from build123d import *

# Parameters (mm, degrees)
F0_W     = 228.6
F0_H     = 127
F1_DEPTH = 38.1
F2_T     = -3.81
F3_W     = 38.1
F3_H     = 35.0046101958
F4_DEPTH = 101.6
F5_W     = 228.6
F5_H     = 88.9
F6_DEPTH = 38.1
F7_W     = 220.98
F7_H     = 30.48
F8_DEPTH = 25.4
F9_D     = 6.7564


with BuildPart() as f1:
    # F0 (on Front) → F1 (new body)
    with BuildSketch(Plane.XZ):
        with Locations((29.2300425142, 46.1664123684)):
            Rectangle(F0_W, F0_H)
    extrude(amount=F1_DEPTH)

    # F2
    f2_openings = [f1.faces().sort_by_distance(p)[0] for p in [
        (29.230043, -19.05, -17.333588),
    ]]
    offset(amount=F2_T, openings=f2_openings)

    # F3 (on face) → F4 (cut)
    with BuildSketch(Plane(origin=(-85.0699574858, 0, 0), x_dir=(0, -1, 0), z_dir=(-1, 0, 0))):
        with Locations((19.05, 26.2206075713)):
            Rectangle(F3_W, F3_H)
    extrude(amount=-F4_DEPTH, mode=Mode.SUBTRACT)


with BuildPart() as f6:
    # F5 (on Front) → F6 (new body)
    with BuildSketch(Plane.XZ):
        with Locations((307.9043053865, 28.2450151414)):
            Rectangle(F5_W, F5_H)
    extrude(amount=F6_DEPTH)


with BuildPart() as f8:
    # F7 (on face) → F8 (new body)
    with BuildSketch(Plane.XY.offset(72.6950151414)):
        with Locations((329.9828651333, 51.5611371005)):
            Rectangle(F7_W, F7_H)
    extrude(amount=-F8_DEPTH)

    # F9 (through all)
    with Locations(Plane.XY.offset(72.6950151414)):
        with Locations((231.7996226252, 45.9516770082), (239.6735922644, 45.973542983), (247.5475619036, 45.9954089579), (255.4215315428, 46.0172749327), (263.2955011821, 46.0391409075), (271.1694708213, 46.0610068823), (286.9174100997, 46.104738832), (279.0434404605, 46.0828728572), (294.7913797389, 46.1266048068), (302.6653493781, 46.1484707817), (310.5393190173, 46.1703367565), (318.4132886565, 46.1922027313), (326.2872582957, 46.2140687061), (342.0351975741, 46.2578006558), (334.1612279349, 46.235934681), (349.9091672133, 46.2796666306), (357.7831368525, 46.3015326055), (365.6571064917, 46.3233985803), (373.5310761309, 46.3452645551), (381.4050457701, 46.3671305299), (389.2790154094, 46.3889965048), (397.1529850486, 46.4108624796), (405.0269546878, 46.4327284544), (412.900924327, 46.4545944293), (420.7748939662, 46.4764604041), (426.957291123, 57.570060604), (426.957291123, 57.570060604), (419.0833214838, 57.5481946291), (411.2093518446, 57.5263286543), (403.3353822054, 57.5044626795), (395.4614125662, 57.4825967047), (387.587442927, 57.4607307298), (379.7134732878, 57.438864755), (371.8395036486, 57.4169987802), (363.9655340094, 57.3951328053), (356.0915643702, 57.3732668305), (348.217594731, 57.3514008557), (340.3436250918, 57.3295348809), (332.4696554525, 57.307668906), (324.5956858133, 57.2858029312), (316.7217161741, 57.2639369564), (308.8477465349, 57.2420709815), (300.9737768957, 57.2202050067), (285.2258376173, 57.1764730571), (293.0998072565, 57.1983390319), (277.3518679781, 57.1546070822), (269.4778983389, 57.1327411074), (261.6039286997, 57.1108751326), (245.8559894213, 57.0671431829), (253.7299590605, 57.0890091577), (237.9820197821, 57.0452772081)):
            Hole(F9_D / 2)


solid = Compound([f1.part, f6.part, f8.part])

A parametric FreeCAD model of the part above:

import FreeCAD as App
import Part
import Sketcher

V = App.Vector
Q = App.Units.Quantity


def faces_at(feature, points):
    """Names of the faces that lie closest to the given points."""
    faces = feature.Shape.Faces
    near = lambda p: min(range(len(faces)), key=lambda i: faces[i].distToShape(Part.Vertex(*p))[0])
    return sorted({f"Face{near(p) + 1}" for p in points})


def add_polygon(sketch, points):
    """Adds a closed chain of lines whose ends are joined by coincident constraints."""
    first, n = sketch.GeometryCount, len(points)
    for a, b in zip(points, points[1:] + points[:1]):
        sketch.addGeometry(Part.LineSegment(App.Vector(*a, 0), App.Vector(*b, 0)), False)
    for i in range(n):
        sketch.addConstraint(Sketcher.Constraint("Coincident", first + i, 2, first + (i + 1) % n, 1))

doc = App.newDocument("Part")
body = doc.addObject("PartDesign::Body", "Body")

sketch1 = doc.addObject("Sketcher::SketchObject", "Sketch")
body.addObject(sketch1)
sketch1.AttachmentSupport = (doc.XZ_Plane, [""])
sketch1.MapMode = "FlatFace"
add_polygon(sketch1, [(-85, 110), (-85, -17), (144, -17), (144, 110)])
sketch1.addConstraint(Sketcher.Constraint("Vertical", 0))
sketch1.addConstraint(Sketcher.Constraint("Horizontal", 1))
sketch1.addConstraint(Sketcher.Constraint("Vertical", 2))
sketch1.addConstraint(Sketcher.Constraint("Horizontal", 3))
sketch1.addConstraint(Sketcher.Constraint("DistanceX", 1, 1, 1, 2, Q("9 in")))
sketch1.addConstraint(Sketcher.Constraint("DistanceY", 0, 2, 0, 1, Q("5 in")))
sketch1.addConstraint(Sketcher.Constraint("DistanceX", 0, 2, -1, 1, Q("85.069957 mm")))
sketch1.addConstraint(Sketcher.Constraint("DistanceY", 0, 2, -1, 1, Q("17.333588 mm")))
pad1 = doc.addObject("PartDesign::Pad", "Pad")
body.addObject(pad1)
pad1.Profile = sketch1
pad1.Length = Q("1.5 in")
doc.recompute()

thickness = doc.addObject("PartDesign::Thickness", "Thickness")
body.addObject(thickness)
thickness.Base = (pad1, faces_at(pad1, [(29.23, -19.05, -17.334)]))
thickness.Value = Q("0.15 in")
thickness.Reversed = True
thickness.Join = "Arc"

sketch2 = doc.addObject("Sketcher::SketchObject", "Sketch001")
body.addObject(sketch2)
sketch2.AttachmentSupport = (doc.YZ_Plane, [""])
sketch2.MapMode = "FlatFace"
sketch2.AttachmentOffset = App.Placement(V(0, 0, -85.069957), App.Rotation())
add_polygon(sketch2, [(0, 44), (0, 9), (-38, 9), (-38, 44)])
sketch2.addConstraint(Sketcher.Constraint("Vertical", 0))
sketch2.addConstraint(Sketcher.Constraint("Horizontal", 1))
sketch2.addConstraint(Sketcher.Constraint("Vertical", 2))
sketch2.addConstraint(Sketcher.Constraint("Horizontal", 3))
sketch2.addConstraint(Sketcher.Constraint("PointOnObject", 0, 2, -2))
sketch2.addConstraint(Sketcher.Constraint("DistanceX", 1, 2, 1, 1, Q("1.5 in")))
sketch2.addConstraint(Sketcher.Constraint("DistanceY", 0, 2, 0, 1, Q("35.00461 mm")))
sketch2.addConstraint(Sketcher.Constraint("DistanceY", -1, 1, 0, 2, Q("8.718302 mm")))
pocket1 = doc.addObject("PartDesign::Pocket", "Pocket")
body.addObject(pocket1)
pocket1.Profile = sketch2
pocket1.Length = Q("4 in")
pocket1.Reversed = True
body2 = doc.addObject("PartDesign::Body", "Body001")

sketch3 = doc.addObject("Sketcher::SketchObject", "Sketch002")
body2.addObject(sketch3)
sketch3.AttachmentSupport = (doc.getObject("XZ_Plane001"), [""])
sketch3.MapMode = "FlatFace"
add_polygon(sketch3, [(194, 73), (194, -16), (422, -16), (422, 73)])
sketch3.addConstraint(Sketcher.Constraint("Vertical", 0))
sketch3.addConstraint(Sketcher.Constraint("Horizontal", 1))
sketch3.addConstraint(Sketcher.Constraint("Vertical", 2))
sketch3.addConstraint(Sketcher.Constraint("Horizontal", 3))
sketch3.addConstraint(Sketcher.Constraint("DistanceX", 1, 1, 1, 2, Q("9 in")))
sketch3.addConstraint(Sketcher.Constraint("DistanceY", 0, 2, 0, 1, Q("3.5 in")))
sketch3.addConstraint(Sketcher.Constraint("DistanceX", -1, 1, 0, 2, Q("193.604305 mm")))
sketch3.addConstraint(Sketcher.Constraint("DistanceY", 0, 2, -1, 1, Q("16.204985 mm")))
pad2 = doc.addObject("PartDesign::Pad", "Pad001")
body2.addObject(pad2)
pad2.Profile = sketch3
pad2.Length = Q("1.5 in")
body3 = doc.addObject("PartDesign::Body", "Body002")

sketch4 = doc.addObject("Sketcher::SketchObject", "Sketch003")
body3.addObject(sketch4)
sketch4.AttachmentSupport = (doc.getObject("XY_Plane002"), [""])
sketch4.MapMode = "FlatFace"
sketch4.AttachmentOffset = App.Placement(V(0, 0, 72.695015), App.Rotation())
add_polygon(sketch4, [(219, 67), (219, 36), (440, 36), (440, 67)])
sketch4.addConstraint(Sketcher.Constraint("Vertical", 0))
sketch4.addConstraint(Sketcher.Constraint("Horizontal", 1))
sketch4.addConstraint(Sketcher.Constraint("Vertical", 2))
sketch4.addConstraint(Sketcher.Constraint("Horizontal", 3))
sketch4.addConstraint(Sketcher.Constraint("DistanceX", 1, 1, 1, 2, Q("8.7 in")))
sketch4.addConstraint(Sketcher.Constraint("DistanceY", 0, 2, 0, 1, Q("1.2 in")))
sketch4.addConstraint(Sketcher.Constraint("DistanceX", -1, 1, 0, 2, Q("219.492865 mm")))
sketch4.addConstraint(Sketcher.Constraint("DistanceY", -1, 1, 0, 2, Q("36.321137 mm")))
pad3 = doc.addObject("PartDesign::Pad", "Pad002")
body3.addObject(pad3)
pad3.Profile = sketch4
pad3.Length = Q("1 in")
pad3.Reversed = True

sketch5 = doc.addObject("Sketcher::SketchObject", "Sketch004")
body3.addObject(sketch5)
sketch5.AttachmentSupport = (doc.getObject("XY_Plane002"), [""])
sketch5.MapMode = "FlatFace"
sketch5.AttachmentOffset = App.Placement(V(0, 0, 72.695015), App.Rotation())
sketch5.addGeometry(Part.Circle(V(231.8, 46, 0), V(0, 0, 1), 3.4), False)
sketch5.addGeometry(Part.Circle(V(239.7, 46, 0), V(0, 0, 1), 3.4), False)
sketch5.addGeometry(Part.Circle(V(247.5, 46, 0), V(0, 0, 1), 3.4), False)
sketch5.addGeometry(Part.Circle(V(255.4, 46, 0), V(0, 0, 1), 3.4), False)
sketch5.addGeometry(Part.Circle(V(263.3, 46, 0), V(0, 0, 1), 3.4), False)
sketch5.addGeometry(Part.Circle(V(271.2, 46.1, 0), V(0, 0, 1), 3.4), False)
sketch5.addGeometry(Part.Circle(V(286.9, 46.1, 0), V(0, 0, 1), 3.4), False)
sketch5.addGeometry(Part.Circle(V(279, 46.1, 0), V(0, 0, 1), 3.4), False)
sketch5.addGeometry(Part.Circle(V(294.8, 46.1, 0), V(0, 0, 1), 3.4), False)
sketch5.addGeometry(Part.Circle(V(302.7, 46.1, 0), V(0, 0, 1), 3.4), False)
sketch5.addGeometry(Part.Circle(V(310.5, 46.2, 0), V(0, 0, 1), 3.4), False)
sketch5.addGeometry(Part.Circle(V(318.4, 46.2, 0), V(0, 0, 1), 3.4), False)
sketch5.addGeometry(Part.Circle(V(326.3, 46.2, 0), V(0, 0, 1), 3.4), False)
sketch5.addGeometry(Part.Circle(V(342, 46.3, 0), V(0, 0, 1), 3.4), False)
sketch5.addGeometry(Part.Circle(V(334.2, 46.2, 0), V(0, 0, 1), 3.4), False)
sketch5.addGeometry(Part.Circle(V(349.9, 46.3, 0), V(0, 0, 1), 3.4), False)
sketch5.addGeometry(Part.Circle(V(357.8, 46.3, 0), V(0, 0, 1), 3.4), False)
sketch5.addGeometry(Part.Circle(V(365.7, 46.3, 0), V(0, 0, 1), 3.4), False)
sketch5.addGeometry(Part.Circle(V(373.5, 46.3, 0), V(0, 0, 1), 3.4), False)
sketch5.addGeometry(Part.Circle(V(381.4, 46.4, 0), V(0, 0, 1), 3.4), False)
sketch5.addGeometry(Part.Circle(V(389.3, 46.4, 0), V(0, 0, 1), 3.4), False)
sketch5.addGeometry(Part.Circle(V(397.2, 46.4, 0), V(0, 0, 1), 3.4), False)
sketch5.addGeometry(Part.Circle(V(405, 46.4, 0), V(0, 0, 1), 3.4), False)
sketch5.addGeometry(Part.Circle(V(412.9, 46.5, 0), V(0, 0, 1), 3.4), False)
sketch5.addGeometry(Part.Circle(V(420.8, 46.5, 0), V(0, 0, 1), 3.4), False)
sketch5.addGeometry(Part.Circle(V(427, 57.6, 0), V(0, 0, 1), 3.4), False)
sketch5.addGeometry(Part.Circle(V(427, 57.6, 0), V(0, 0, 1), 3.4), False)
sketch5.addGeometry(Part.Circle(V(419.1, 57.5, 0), V(0, 0, 1), 3.4), False)
sketch5.addGeometry(Part.Circle(V(411.2, 57.5, 0), V(0, 0, 1), 3.4), False)
sketch5.addGeometry(Part.Circle(V(403.3, 57.5, 0), V(0, 0, 1), 3.4), False)
sketch5.addGeometry(Part.Circle(V(395.5, 57.5, 0), V(0, 0, 1), 3.4), False)
sketch5.addGeometry(Part.Circle(V(387.6, 57.5, 0), V(0, 0, 1), 3.4), False)
sketch5.addGeometry(Part.Circle(V(379.7, 57.4, 0), V(0, 0, 1), 3.4), False)
sketch5.addGeometry(Part.Circle(V(371.8, 57.4, 0), V(0, 0, 1), 3.4), False)
sketch5.addGeometry(Part.Circle(V(364, 57.4, 0), V(0, 0, 1), 3.4), False)
sketch5.addGeometry(Part.Circle(V(356.1, 57.4, 0), V(0, 0, 1), 3.4), False)
sketch5.addGeometry(Part.Circle(V(348.2, 57.4, 0), V(0, 0, 1), 3.4), False)
sketch5.addGeometry(Part.Circle(V(340.3, 57.3, 0), V(0, 0, 1), 3.4), False)
sketch5.addGeometry(Part.Circle(V(332.5, 57.3, 0), V(0, 0, 1), 3.4), False)
sketch5.addGeometry(Part.Circle(V(324.6, 57.3, 0), V(0, 0, 1), 3.4), False)
sketch5.addGeometry(Part.Circle(V(316.7, 57.3, 0), V(0, 0, 1), 3.4), False)
sketch5.addGeometry(Part.Circle(V(308.8, 57.2, 0), V(0, 0, 1), 3.4), False)
sketch5.addGeometry(Part.Circle(V(301, 57.2, 0), V(0, 0, 1), 3.4), False)
sketch5.addGeometry(Part.Circle(V(285.2, 57.2, 0), V(0, 0, 1), 3.4), False)
sketch5.addGeometry(Part.Circle(V(293.1, 57.2, 0), V(0, 0, 1), 3.4), False)
sketch5.addGeometry(Part.Circle(V(277.4, 57.2, 0), V(0, 0, 1), 3.4), False)
sketch5.addGeometry(Part.Circle(V(269.5, 57.1, 0), V(0, 0, 1), 3.4), False)
sketch5.addGeometry(Part.Circle(V(261.6, 57.1, 0), V(0, 0, 1), 3.4), False)
sketch5.addGeometry(Part.Circle(V(245.9, 57.1, 0), V(0, 0, 1), 3.4), False)
sketch5.addGeometry(Part.Circle(V(253.7, 57.1, 0), V(0, 0, 1), 3.4), False)
sketch5.addGeometry(Part.Circle(V(238, 57, 0), V(0, 0, 1), 3.4), False)
sketch5.addConstraint(Sketcher.Constraint("Coincident", 26, 3, 25, 3))
sketch5.addConstraint(Sketcher.Constraint("Equal", 0, 1))
sketch5.addConstraint(Sketcher.Constraint("Equal", 1, 2))
sketch5.addConstraint(Sketcher.Constraint("Equal", 2, 3))
sketch5.addConstraint(Sketcher.Constraint("Equal", 3, 4))
sketch5.addConstraint(Sketcher.Constraint("Equal", 4, 5))
sketch5.addConstraint(Sketcher.Constraint("Equal", 5, 6))
sketch5.addConstraint(Sketcher.Constraint("Equal", 6, 7))
sketch5.addConstraint(Sketcher.Constraint("Equal", 7, 8))
sketch5.addConstraint(Sketcher.Constraint("Equal", 8, 9))
sketch5.addConstraint(Sketcher.Constraint("Equal", 9, 10))
sketch5.addConstraint(Sketcher.Constraint("Equal", 10, 11))
sketch5.addConstraint(Sketcher.Constraint("Equal", 11, 12))
sketch5.addConstraint(Sketcher.Constraint("Equal", 12, 13))
sketch5.addConstraint(Sketcher.Constraint("Equal", 13, 14))
sketch5.addConstraint(Sketcher.Constraint("Equal", 14, 15))
sketch5.addConstraint(Sketcher.Constraint("Equal", 15, 16))
sketch5.addConstraint(Sketcher.Constraint("Equal", 16, 17))
sketch5.addConstraint(Sketcher.Constraint("Equal", 17, 18))
sketch5.addConstraint(Sketcher.Constraint("Equal", 18, 19))
sketch5.addConstraint(Sketcher.Constraint("Equal", 19, 20))
sketch5.addConstraint(Sketcher.Constraint("Equal", 20, 21))
sketch5.addConstraint(Sketcher.Constraint("Equal", 21, 22))
sketch5.addConstraint(Sketcher.Constraint("Equal", 22, 23))
sketch5.addConstraint(Sketcher.Constraint("Equal", 23, 24))
sketch5.addConstraint(Sketcher.Constraint("Equal", 24, 25))
sketch5.addConstraint(Sketcher.Constraint("Equal", 25, 26))
sketch5.addConstraint(Sketcher.Constraint("Equal", 26, 27))
sketch5.addConstraint(Sketcher.Constraint("Equal", 27, 28))
sketch5.addConstraint(Sketcher.Constraint("Equal", 28, 29))
sketch5.addConstraint(Sketcher.Constraint("Equal", 29, 30))
sketch5.addConstraint(Sketcher.Constraint("Equal", 30, 31))
sketch5.addConstraint(Sketcher.Constraint("Equal", 31, 32))
sketch5.addConstraint(Sketcher.Constraint("Equal", 32, 33))
sketch5.addConstraint(Sketcher.Constraint("Equal", 33, 34))
sketch5.addConstraint(Sketcher.Constraint("Equal", 34, 35))
sketch5.addConstraint(Sketcher.Constraint("Equal", 35, 36))
sketch5.addConstraint(Sketcher.Constraint("Equal", 36, 37))
sketch5.addConstraint(Sketcher.Constraint("Equal", 37, 38))
sketch5.addConstraint(Sketcher.Constraint("Equal", 38, 39))
sketch5.addConstraint(Sketcher.Constraint("Equal", 39, 40))
sketch5.addConstraint(Sketcher.Constraint("Equal", 40, 41))
sketch5.addConstraint(Sketcher.Constraint("Equal", 41, 42))
sketch5.addConstraint(Sketcher.Constraint("Equal", 42, 43))
sketch5.addConstraint(Sketcher.Constraint("Equal", 43, 44))
sketch5.addConstraint(Sketcher.Constraint("Equal", 44, 45))
sketch5.addConstraint(Sketcher.Constraint("Equal", 45, 46))
sketch5.addConstraint(Sketcher.Constraint("Equal", 46, 47))
sketch5.addConstraint(Sketcher.Constraint("Equal", 47, 48))
sketch5.addConstraint(Sketcher.Constraint("Equal", 48, 49))
sketch5.addConstraint(Sketcher.Constraint("Equal", 49, 50))
sketch5.addConstraint(Sketcher.Constraint("Diameter", 0, Q("0.266 in")))
sketch5.addConstraint(Sketcher.Constraint("DistanceX", -1, 1, 4, 3, Q("263.295501 mm")))
sketch5.addConstraint(Sketcher.Constraint("DistanceY", -1, 1, 13, 3, Q("46.257801 mm")))
sketch5.addConstraint(Sketcher.Constraint("DistanceY", -1, 1, 17, 3, Q("46.323399 mm")))
sketch5.addConstraint(Sketcher.Constraint("DistanceY", -1, 1, 33, 3, Q("57.416999 mm")))
sketch5.addConstraint(Sketcher.Constraint("DistanceY", -1, 1, 36, 3, Q("57.351401 mm")))
sketch5.addConstraint(Sketcher.Constraint("DistanceX", -1, 1, 46, 3, Q("269.477898 mm")))
sketch5.addConstraint(Sketcher.Constraint("DistanceY", 24, 3, 25, 3, Q("11.0936 mm")))
sketch5.addConstraint(Sketcher.Constraint("DistanceY", 21, 3, 25, 3, Q("11.159198 mm")))
sketch5.addConstraint(Sketcher.Constraint("DistanceY", 23, 3, 27, 3, Q("11.0936 mm")))
sketch5.addConstraint(Sketcher.Constraint("DistanceY", 22, 3, 28, 3, Q("11.0936 mm")))
sketch5.addConstraint(Sketcher.Constraint("DistanceY", 21, 3, 29, 3, Q("11.0936 mm")))
sketch5.addConstraint(Sketcher.Constraint("DistanceY", 20, 3, 30, 3, Q("11.0936 mm")))
sketch5.addConstraint(Sketcher.Constraint("DistanceY", 19, 3, 31, 3, Q("11.0936 mm")))
sketch5.addConstraint(Sketcher.Constraint("DistanceY", 18, 3, 32, 3, Q("11.0936 mm")))
sketch5.addConstraint(Sketcher.Constraint("DistanceY", 16, 3, 34, 3, Q("11.0936 mm")))
sketch5.addConstraint(Sketcher.Constraint("DistanceY", 15, 3, 35, 3, Q("11.0936 mm")))
sketch5.addConstraint(Sketcher.Constraint("DistanceY", 14, 3, 37, 3, Q("11.0936 mm")))
sketch5.addConstraint(Sketcher.Constraint("DistanceY", 12, 3, 38, 3, Q("11.0936 mm")))
sketch5.addConstraint(Sketcher.Constraint("DistanceY", 11, 3, 39, 3, Q("11.0936 mm")))
sketch5.addConstraint(Sketcher.Constraint("DistanceY", 10, 3, 40, 3, Q("11.0936 mm")))
sketch5.addConstraint(Sketcher.Constraint("DistanceY", 9, 3, 41, 3, Q("11.0936 mm")))
sketch5.addConstraint(Sketcher.Constraint("DistanceY", 8, 3, 42, 3, Q("11.0936 mm")))
sketch5.addConstraint(Sketcher.Constraint("DistanceY", 7, 3, 43, 3, Q("11.0936 mm")))
sketch5.addConstraint(Sketcher.Constraint("DistanceY", 6, 3, 44, 3, Q("11.0936 mm")))
sketch5.addConstraint(Sketcher.Constraint("DistanceY", 5, 3, 45, 3, Q("11.0936 mm")))
sketch5.addConstraint(Sketcher.Constraint("DistanceY", 4, 3, 46, 3, Q("11.0936 mm")))
sketch5.addConstraint(Sketcher.Constraint("DistanceY", 3, 3, 47, 3, Q("11.0936 mm")))
sketch5.addConstraint(Sketcher.Constraint("DistanceY", 1, 3, 48, 3, Q("11.0936 mm")))
sketch5.addConstraint(Sketcher.Constraint("DistanceY", 2, 3, 49, 3, Q("11.0936 mm")))
sketch5.addConstraint(Sketcher.Constraint("DistanceY", 0, 3, 50, 3, Q("11.0936 mm")))
sketch5.addConstraint(Sketcher.Constraint("DistanceX", -1, 1, 2, 3, Q("247.547562 mm")))
sketch5.addConstraint(Sketcher.Constraint("DistanceY", -1, 1, 2, 3, Q("45.995409 mm")))
sketch5.addConstraint(Sketcher.Constraint("DistanceX", -1, 1, 3, 3, Q("255.421532 mm")))
sketch5.addConstraint(Sketcher.Constraint("DistanceY", -1, 1, 4, 3, Q("46.039141 mm")))
sketch5.addConstraint(Sketcher.Constraint("DistanceX", -1, 1, 5, 3, Q("271.169471 mm")))
sketch5.addConstraint(Sketcher.Constraint("DistanceX", -1, 1, 6, 3, Q("286.91741 mm")))
sketch5.addConstraint(Sketcher.Constraint("DistanceY", -1, 1, 6, 3, Q("46.104739 mm")))
sketch5.addConstraint(Sketcher.Constraint("DistanceX", -1, 1, 7, 3, Q("279.04344 mm")))
sketch5.addConstraint(Sketcher.Constraint("DistanceX", -1, 1, 8, 3, Q("294.79138 mm")))
sketch5.addConstraint(Sketcher.Constraint("DistanceX", -1, 1, 9, 3, Q("302.665349 mm")))
sketch5.addConstraint(Sketcher.Constraint("DistanceY", -1, 1, 9, 3, Q("46.148471 mm")))
sketch5.addConstraint(Sketcher.Constraint("DistanceX", -1, 1, 10, 3, Q("310.539319 mm")))
sketch5.addConstraint(Sketcher.Constraint("DistanceX", -1, 1, 11, 3, Q("318.413289 mm")))
sketch5.addConstraint(Sketcher.Constraint("DistanceX", -1, 1, 12, 3, Q("326.287258 mm")))
sketch5.addConstraint(Sketcher.Constraint("DistanceY", -1, 1, 12, 3, Q("46.214069 mm")))
sketch5.addConstraint(Sketcher.Constraint("DistanceY", -1, 1, 19, 3, Q("46.367131 mm")))
sketch5.addConstraint(Sketcher.Constraint("DistanceY", -1, 1, 22, 3, Q("46.432728 mm")))
sketch5.addConstraint(Sketcher.Constraint("DistanceY", -1, 1, 24, 3, Q("46.47646 mm")))
sketch5.addConstraint(Sketcher.Constraint("DistanceX", -1, 1, 25, 3, Q("426.957291 mm")))
sketch5.addConstraint(Sketcher.Constraint("DistanceX", -1, 1, 27, 3, Q("419.083321 mm")))
sketch5.addConstraint(Sketcher.Constraint("DistanceX", -1, 1, 28, 3, Q("411.209352 mm")))
sketch5.addConstraint(Sketcher.Constraint("DistanceX", -1, 1, 47, 3, Q("261.603929 mm")))
sketch5.addConstraint(Sketcher.Constraint("DistanceX", -1, 1, 48, 3, Q("245.855989 mm")))
sketch5.addConstraint(Sketcher.Constraint("DistanceX", -1, 1, 49, 3, Q("253.729959 mm")))
sketch5.addConstraint(Sketcher.Constraint("DistanceX", -1, 1, 50, 3, Q("237.98202 mm")))
sketch5.addConstraint(Sketcher.Constraint("DistanceX", 0, 3, 1, 3, Q("7.87397 mm")))
sketch5.addConstraint(Sketcher.Constraint("DistanceX", 1, 3, 2, 3, Q("7.87397 mm")))
sketch5.addConstraint(Sketcher.Constraint("DistanceY", 0, 3, 2, 3, Q("0.043732 mm")))
sketch5.addConstraint(Sketcher.Constraint("DistanceY", 1, 3, 3, 3, Q("0.043732 mm")))
sketch5.addConstraint(Sketcher.Constraint("DistanceY", 3, 3, 5, 3, Q("0.043732 mm")))
sketch5.addConstraint(Sketcher.Constraint("DistanceY", 0, 3, 5, 3, Q("0.10933 mm")))
sketch5.addConstraint(Sketcher.Constraint("DistanceY", 4, 3, 7, 3, Q("0.043732 mm")))
sketch5.addConstraint(Sketcher.Constraint("DistanceY", 7, 3, 8, 3, Q("0.043732 mm")))
sketch5.addConstraint(Sketcher.Constraint("DistanceY", 8, 3, 10, 3, Q("0.043732 mm")))
sketch5.addConstraint(Sketcher.Constraint("DistanceY", 9, 3, 11, 3, Q("0.043732 mm")))
sketch5.addConstraint(Sketcher.Constraint("DistanceX", 12, 3, 13, 3, Q("15.747939 mm")))
sketch5.addConstraint(Sketcher.Constraint("DistanceX", 12, 3, 14, 3, Q("7.87397 mm")))
sketch5.addConstraint(Sketcher.Constraint("DistanceY", 11, 3, 14, 3, Q("0.043732 mm")))
sketch5.addConstraint(Sketcher.Constraint("DistanceX", 13, 3, 15, 3, Q("7.87397 mm")))
sketch5.addConstraint(Sketcher.Constraint("DistanceY", 14, 3, 15, 3, Q("0.043732 mm")))
sketch5.addConstraint(Sketcher.Constraint("DistanceX", 15, 3, 16, 3, Q("7.87397 mm")))
sketch5.addConstraint(Sketcher.Constraint("DistanceY", 13, 3, 16, 3, Q("0.043732 mm")))
sketch5.addConstraint(Sketcher.Constraint("DistanceX", 16, 3, 17, 3, Q("7.87397 mm")))
sketch5.addConstraint(Sketcher.Constraint("DistanceX", 17, 3, 18, 3, Q("7.87397 mm")))
sketch5.addConstraint(Sketcher.Constraint("DistanceY", 16, 3, 18, 3, Q("0.043732 mm")))
sketch5.addConstraint(Sketcher.Constraint("DistanceX", 18, 3, 19, 3, Q("7.87397 mm")))
sketch5.addConstraint(Sketcher.Constraint("DistanceX", 19, 3, 20, 3, Q("7.87397 mm")))
sketch5.addConstraint(Sketcher.Constraint("DistanceY", 18, 3, 20, 3, Q("0.043732 mm")))
sketch5.addConstraint(Sketcher.Constraint("DistanceX", 20, 3, 21, 3, Q("7.87397 mm")))
sketch5.addConstraint(Sketcher.Constraint("DistanceX", 21, 3, 22, 3, Q("7.87397 mm")))
sketch5.addConstraint(Sketcher.Constraint("DistanceX", 22, 3, 23, 3, Q("7.87397 mm")))
sketch5.addConstraint(Sketcher.Constraint("DistanceY", 21, 3, 23, 3, Q("0.043732 mm")))
sketch5.addConstraint(Sketcher.Constraint("DistanceX", 23, 3, 24, 3, Q("7.87397 mm")))
sketch5.addConstraint(Sketcher.Constraint("DistanceX", 29, 3, 28, 3, Q("7.87397 mm")))
sketch5.addConstraint(Sketcher.Constraint("DistanceX", 30, 3, 29, 3, Q("7.87397 mm")))
sketch5.addConstraint(Sketcher.Constraint("DistanceX", 31, 3, 30, 3, Q("7.87397 mm")))
sketch5.addConstraint(Sketcher.Constraint("DistanceX", 32, 3, 31, 3, Q("7.87397 mm")))
sketch5.addConstraint(Sketcher.Constraint("DistanceX", 33, 3, 32, 3, Q("7.87397 mm")))
sketch5.addConstraint(Sketcher.Constraint("DistanceX", 34, 3, 33, 3, Q("7.87397 mm")))
sketch5.addConstraint(Sketcher.Constraint("DistanceX", 35, 3, 34, 3, Q("7.87397 mm")))
sketch5.addConstraint(Sketcher.Constraint("DistanceX", 36, 3, 35, 3, Q("7.87397 mm")))
sketch5.addConstraint(Sketcher.Constraint("DistanceX", 37, 3, 36, 3, Q("7.87397 mm")))
sketch5.addConstraint(Sketcher.Constraint("DistanceX", 38, 3, 37, 3, Q("7.87397 mm")))
sketch5.addConstraint(Sketcher.Constraint("DistanceX", 39, 3, 38, 3, Q("7.87397 mm")))
sketch5.addConstraint(Sketcher.Constraint("DistanceX", 40, 3, 39, 3, Q("7.87397 mm")))
sketch5.addConstraint(Sketcher.Constraint("DistanceX", 41, 3, 40, 3, Q("7.87397 mm")))
sketch5.addConstraint(Sketcher.Constraint("DistanceX", 42, 3, 41, 3, Q("7.87397 mm")))
sketch5.addConstraint(Sketcher.Constraint("DistanceX", 43, 3, 42, 3, Q("15.747939 mm")))
sketch5.addConstraint(Sketcher.Constraint("DistanceX", 44, 3, 42, 3, Q("7.87397 mm")))
sketch5.addConstraint(Sketcher.Constraint("DistanceX", 45, 3, 43, 3, Q("7.87397 mm")))
doc.recompute()
hole = doc.addObject("PartDesign::Hole", "Hole")
body3.addObject(hole)
hole.Profile = sketch5
hole.ThreadType = "None"
hole.Diameter = Q("0.266 in")
hole.DepthType = "ThroughAll"

doc.recompute()
